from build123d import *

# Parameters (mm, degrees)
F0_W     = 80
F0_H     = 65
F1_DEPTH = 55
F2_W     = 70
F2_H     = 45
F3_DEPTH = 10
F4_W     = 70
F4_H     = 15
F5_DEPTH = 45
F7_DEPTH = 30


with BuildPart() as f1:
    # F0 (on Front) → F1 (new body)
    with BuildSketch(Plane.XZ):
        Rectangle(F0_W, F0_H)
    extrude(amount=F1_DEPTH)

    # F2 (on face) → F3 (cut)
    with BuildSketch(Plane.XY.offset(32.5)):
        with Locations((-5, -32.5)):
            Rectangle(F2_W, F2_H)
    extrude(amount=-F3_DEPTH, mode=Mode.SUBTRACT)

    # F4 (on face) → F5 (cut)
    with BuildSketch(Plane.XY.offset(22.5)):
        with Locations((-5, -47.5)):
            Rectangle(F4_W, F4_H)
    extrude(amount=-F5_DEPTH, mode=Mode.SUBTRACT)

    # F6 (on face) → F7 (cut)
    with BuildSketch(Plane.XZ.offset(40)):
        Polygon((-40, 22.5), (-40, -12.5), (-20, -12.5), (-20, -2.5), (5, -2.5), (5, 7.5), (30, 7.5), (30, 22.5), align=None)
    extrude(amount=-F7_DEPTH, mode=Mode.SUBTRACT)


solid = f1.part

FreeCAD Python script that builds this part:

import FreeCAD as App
import Part
import Sketcher

V = App.Vector


def add_polygon(sketch, points):
    """Adds a closed chain of lines whose ends are joined by coincident constraints."""
    first, n = sketch.GeometryCount, len(points)
    for a, b in zip(points, points[1:] + points[:1]):
        sketch.addGeometry(Part.LineSegment(App.Vector(*a, 0), App.Vector(*b, 0)), False)
    for i in range(n):
        sketch.addConstraint(Sketcher.Constraint("Coincident", first + i, 2, first + (i + 1) % n, 1))

doc = App.newDocument("Part")
params = doc.addObject("Spreadsheet::Sheet", "Params")
for row, (alias, value) in enumerate([
    ("sketch1_width", "80 mm"),
    ("sketch1_height", "65 mm"),
    ("pad1_length", "55 mm"),
    ("sketch2_width", "70 mm"),
    ("sketch2_height", "45 mm"),
    ("pocket1_length", "10 mm"),
    ("sketch3_width", "70 mm"),
    ("sketch3_height", "15 mm"),
    ("pocket2_length", "45 mm"),
    ("sketch4_width", "20 mm"),
    ("sketch4_width2", "25 mm"),
    ("sketch4_height", "35 mm"),
    ("sketch4_height2", "10 mm"),
    ("pocket3_length", "30 mm"),
], start=1):
    params.set(f"A{row}", alias)
    params.set(f"B{row}", "=" + value)
    params.setAlias(f"B{row}", alias)

body = doc.addObject("PartDesign::Body", "Body")

sketch1 = body.newObject("Sketcher::SketchObject", "Sketch")
sketch1.AttachmentSupport = (doc.getObject("XZ_Plane"), [""])
sketch1.MapMode = "FlatFace"
add_polygon(sketch1, [(-40, 32), (-40, -32), (40, -32), (40, 32)])
sketch1.addConstraint(Sketcher.Constraint("Vertical", 0))
sketch1.addConstraint(Sketcher.Constraint("Horizontal", 1))
sketch1.addConstraint(Sketcher.Constraint("Vertical", 2))
sketch1.addConstraint(Sketcher.Constraint("Horizontal", 3))
sketch1.addConstraint(Sketcher.Constraint("Symmetric", 0, 2, 2, 2, -1, 1))
sketch1.addConstraint(Sketcher.Constraint("DistanceX", 1, 1, 1, 2, 80.0))
sketch1.addConstraint(Sketcher.Constraint("DistanceY", 0, 2, 0, 1, 65.0))
sketch1.setExpression("Constraints[9]", "Params.sketch1_width")
sketch1.setExpression("Constraints[10]", "Params.sketch1_height")
pad1 = body.newObject("PartDesign::Pad", "Pad")
pad1.Profile = sketch1
pad1.setExpression("Length", "Params.pad1_length")

sketch2 = body.newObject("Sketcher::SketchObject", "Sketch001")
sketch2.AttachmentSupport = (doc.getObject("XY_Plane"), [""])
sketch2.MapMode = "FlatFace"
sketch2.AttachmentOffset = App.Placement(V(0, 0, 32.5), App.Rotation())
add_polygon(sketch2, [(-40, -10), (-40, -55), (30, -55), (30, -10)])
sketch2.addConstraint(Sketcher.Constraint("Vertical", 0))
sketch2.addConstraint(Sketcher.Constraint("Horizontal", 1))
sketch2.addConstraint(Sketcher.Constraint("Vertical", 2))
sketch2.addConstraint(Sketcher.Constraint("Horizontal", 3))
sketch2.addConstraint(Sketcher.Constraint("DistanceX", 1, 1, 1, 2, 70.0))
sketch2.addConstraint(Sketcher.Constraint("DistanceY", 0, 2, 0, 1, 45.0))
sketch2.addConstraint(Sketcher.Constraint("DistanceX", 0, 2, -1, 1, 40.0))
sketch2.addConstraint(Sketcher.Constraint("DistanceY", 0, 2, -1, 1, 55.0))
sketch2.setExpression("Constraints[8]", "Params.sketch2_width")
sketch2.setExpression("Constraints[9]", "Params.sketch2_height")
pocket1 = body.newObject("PartDesign::Pocket", "Pocket")
pocket1.Profile = sketch2
pocket1.setExpression("Length", "Params.pocket1_length")

sketch3 = body.newObject("Sketcher::SketchObject", "Sketch002")
sketch3.AttachmentSupport = (doc.getObject("XY_Plane"), [""])
sketch3.MapMode = "FlatFace"
sketch3.AttachmentOffset = App.Placement(V(0, 0, 22.5), App.Rotation())
add_polygon(sketch3, [(-40, -40), (-40, -55), (30, -55), (30, -40)])
sketch3.addConstraint(Sketcher.Constraint("Vertical", 0))
sketch3.addConstraint(Sketcher.Constraint("Horizontal", 1))
sketch3.addConstraint(Sketcher.Constraint("Vertical", 2))
sketch3.addConstraint(Sketcher.Constraint("Horizontal", 3))
sketch3.addConstraint(Sketcher.Constraint("DistanceX", 1, 1, 1, 2, 70.0))
sketch3.addConstraint(Sketcher.Constraint("DistanceY", 0, 2, 0, 1, 15.0))
sketch3.addConstraint(Sketcher.Constraint("DistanceX", 0, 2, -1, 1, 40.0))
sketch3.addConstraint(Sketcher.Constraint("DistanceY", 0, 2, -1, 1, 55.0))
sketch3.setExpression("Constraints[8]", "Params.sketch3_width")
sketch3.setExpression("Constraints[9]", "Params.sketch3_height")
pocket2 = body.newObject("PartDesign::Pocket", "Pocket001")
pocket2.Profile = sketch3
pocket2.setExpression("Length", "Params.pocket2_length")

sketch4 = body.newObject("Sketcher::SketchObject", "Sketch003")
sketch4.AttachmentSupport = (doc.getObject("XZ_Plane"), [""])
sketch4.MapMode = "FlatFace"
sketch4.AttachmentOffset = App.Placement(V(0, 0, 40), App.Rotation())
add_polygon(sketch4, [(-40, 22), (-40, -12), (-20, -12), (-20, -2), (5, -2), (5, 8), (30, 8), (30, 22)])
sketch4.addConstraint(Sketcher.Constraint("Vertical", 0))
sketch4.addConstraint(Sketcher.Constraint("Horizontal", 1))
sketch4.addConstraint(Sketcher.Constraint("Vertical", 2))
sketch4.addConstraint(Sketcher.Constraint("Horizontal", 3))
sketch4.addConstraint(Sketcher.Constraint("Vertical", 4))
sketch4.addConstraint(Sketcher.Constraint("Horizontal", 5))
sketch4.addConstraint(Sketcher.Constraint("Vertical", 6))
sketch4.addConstraint(Sketcher.Constraint("Horizontal", 7))
sketch4.addConstraint(Sketcher.Constraint("Equal", 3, 5))
sketch4.addConstraint(Sketcher.Constraint("Equal", 2, 4))
sketch4.addConstraint(Sketcher.Constraint("DistanceX", 1, 1, 1, 2, 20.0))
sketch4.addConstraint(Sketcher.Constraint("DistanceX", 3, 1, 3, 2, 25.0))
sketch4.addConstraint(Sketcher.Constraint("DistanceY", 0, 2, 0, 1, 35.0))
sketch4.addConstraint(Sketcher.Constraint("DistanceY", 2, 1, 2, 2, 10.0))
sketch4.addConstraint(Sketcher.Constraint("DistanceX", 0, 2, -1, 1, 40.0))
sketch4.addConstraint(Sketcher.Constraint("DistanceY", 0, 2, -1, 1, 12.5))
sketch4.setExpression("Constraints[18]", "Params.sketch4_width")
sketch4.setExpression("Constraints[19]", "Params.sketch4_width2")
sketch4.setExpression("Constraints[20]", "Params.sketch4_height")
sketch4.setExpression("Constraints[21]", "Params.sketch4_height2")
pocket3 = body.newObject("PartDesign::Pocket", "Pocket002")
pocket3.Profile = sketch4
pocket3.setExpression("Length", "Params.pocket3_length")

doc.recompute()
